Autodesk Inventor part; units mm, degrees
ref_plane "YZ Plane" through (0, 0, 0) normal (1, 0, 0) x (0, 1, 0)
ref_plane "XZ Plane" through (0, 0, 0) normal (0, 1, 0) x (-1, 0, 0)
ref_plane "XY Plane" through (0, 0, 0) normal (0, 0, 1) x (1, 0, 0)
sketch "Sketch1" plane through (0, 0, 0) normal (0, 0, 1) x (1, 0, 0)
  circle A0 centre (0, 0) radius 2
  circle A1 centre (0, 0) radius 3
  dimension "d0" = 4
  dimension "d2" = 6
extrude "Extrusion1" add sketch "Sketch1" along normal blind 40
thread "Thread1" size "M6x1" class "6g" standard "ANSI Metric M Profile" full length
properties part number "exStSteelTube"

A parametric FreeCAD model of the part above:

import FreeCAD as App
import Part
import Sketcher

V = App.Vector

doc = App.newDocument("Part")
body = doc.addObject("PartDesign::Body", "Body")

# Sketch on XY plane
sketch1 = body.newObject("Sketcher::SketchObject", "Sketch")
sketch1.AttachmentSupport = (doc.getObject("XY_Plane"), [""])
sketch1.MapMode = "FlatFace"
sketch1.addGeometry([
    Part.Circle(V(0, 0, 0), V(0, 0, 1), 3),
    Part.Circle(V(0, 0, 0), V(0, 0, 1), 2),
], False)
sketch1.addConstraint([
    Sketcher.Constraint("Coincident", 0, 3, -1, 1),
    Sketcher.Constraint("Coincident", 1, 3, -1, 1),
    Sketcher.Constraint("Diameter", 0, 6.0),
    Sketcher.Constraint("Diameter", 1, 4.0),
])
pad1 = body.newObject("PartDesign::Pad", "Pad")
pad1.Profile = sketch1
pad1.Length = 40

doc.recompute()
